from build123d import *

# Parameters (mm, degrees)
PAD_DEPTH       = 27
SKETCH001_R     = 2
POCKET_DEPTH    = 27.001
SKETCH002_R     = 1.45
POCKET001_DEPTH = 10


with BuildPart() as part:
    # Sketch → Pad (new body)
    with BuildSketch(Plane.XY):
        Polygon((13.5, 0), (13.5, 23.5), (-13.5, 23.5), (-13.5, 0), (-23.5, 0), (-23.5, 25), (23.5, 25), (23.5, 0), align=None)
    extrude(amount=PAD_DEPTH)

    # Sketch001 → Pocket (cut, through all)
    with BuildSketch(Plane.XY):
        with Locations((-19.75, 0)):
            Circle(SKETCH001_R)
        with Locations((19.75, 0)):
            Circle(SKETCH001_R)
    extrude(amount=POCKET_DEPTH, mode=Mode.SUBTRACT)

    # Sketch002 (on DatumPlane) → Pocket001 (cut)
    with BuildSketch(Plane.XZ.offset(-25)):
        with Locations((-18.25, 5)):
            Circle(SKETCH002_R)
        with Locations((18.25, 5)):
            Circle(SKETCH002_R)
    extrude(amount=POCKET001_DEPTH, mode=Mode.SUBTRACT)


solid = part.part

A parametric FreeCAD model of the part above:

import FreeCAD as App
import Part
import Sketcher

V = App.Vector
Q = App.Units.Quantity

doc = App.newDocument("Part")
body = doc.addObject("PartDesign::Body", "Body")

# Sketch on XY plane
sketch1 = doc.addObject("Sketcher::SketchObject", "Sketch")
body.addObject(sketch1)
sketch1.AttachmentSupport = (doc.XY_Plane, [""])
sketch1.MapMode = "FlatFace"
sketch1.addGeometry(Part.LineSegment(V(14, 24, 0), V(14, 0, 0)), False)
sketch1.addGeometry(Part.LineSegment(V(14, 0, 0), V(24, 0, 0)), False)
sketch1.addGeometry(Part.LineSegment(V(24, 0, 0), V(24, 25, 0)), False)
sketch1.addGeometry(Part.LineSegment(V(24, 25, 0), V(-24, 25, 0)), False)
sketch1.addGeometry(Part.LineSegment(V(-24, 25, 0), V(-24, 0, 0)), False)
sketch1.addGeometry(Part.LineSegment(V(-24, 0, 0), V(-14, 0, 0)), False)
sketch1.addGeometry(Part.LineSegment(V(-14, 0, 0), V(-14, 24, 0)), False)
sketch1.addGeometry(Part.LineSegment(V(-14, 24, 0), V(14, 24, 0)), False)
sketch1.addConstraint(Sketcher.Constraint("Coincident", 0, 2, 1, 1))
sketch1.addConstraint(Sketcher.Constraint("Coincident", 1, 2, 2, 1))
sketch1.addConstraint(Sketcher.Constraint("Coincident", 2, 2, 3, 1))
sketch1.addConstraint(Sketcher.Constraint("Coincident", 3, 2, 4, 1))
sketch1.addConstraint(Sketcher.Constraint("Coincident", 4, 2, 5, 1))
sketch1.addConstraint(Sketcher.Constraint("Coincident", 5, 2, 6, 1))
sketch1.addConstraint(Sketcher.Constraint("Coincident", 6, 2, 7, 1))
sketch1.addConstraint(Sketcher.Constraint("Coincident", 7, 2, 0, 1))
sketch1.addConstraint(Sketcher.Constraint("Vertical", 0))
sketch1.addConstraint(Sketcher.Constraint("Horizontal", 1))
sketch1.addConstraint(Sketcher.Constraint("Vertical", 2))
sketch1.addConstraint(Sketcher.Constraint("Horizontal", 3))
sketch1.addConstraint(Sketcher.Constraint("Vertical", 4))
sketch1.addConstraint(Sketcher.Constraint("Horizontal", 5))
sketch1.addConstraint(Sketcher.Constraint("Vertical", 6))
sketch1.addConstraint(Sketcher.Constraint("Horizontal", 7))
sketch1.addConstraint(Sketcher.Constraint("Symmetric", 1, 2, 4, 2, -1, 1))
sketch1.addConstraint(Sketcher.Constraint("Symmetric", 0, 2, 5, 2, -2))
sketch1.addConstraint(Sketcher.Constraint("DistanceX", 1, 1, 1, 2, Q("10 mm")))
sketch1.addConstraint(Sketcher.Constraint("DistanceX", 3, 2, 3, 1, Q("47 mm")))
sketch1.addConstraint(Sketcher.Constraint("DistanceY", 2, 1, 2, 2, Q("25 mm")))
sketch1.addConstraint(Sketcher.Constraint("DistanceY", 0, 2, 0, 1, Q("23.5 mm")))
pad1 = doc.addObject("PartDesign::Pad", "Pad")
body.addObject(pad1)
pad1.Profile = sketch1
pad1.Length = 27

# Sketch on XY plane
sketch2 = doc.addObject("Sketcher::SketchObject", "Sketch001")
body.addObject(sketch2)
sketch2.AttachmentSupport = (doc.XY_Plane, [""])
sketch2.MapMode = "FlatFace"
sketch2.addGeometry(Part.Circle(V(-19.8, 0, 0), V(0, 0, 1), 2), False)
sketch2.addGeometry(Part.Circle(V(19.8, 0, 0), V(0, 0, 1), 2), False)
sketch2.addConstraint(Sketcher.Constraint("Equal", 0, 1))
sketch2.addConstraint(Sketcher.Constraint("Symmetric", 0, 3, 1, 3, -1, 1))
sketch2.addConstraint(Sketcher.Constraint("PointOnObject", 0, 3, -1))
sketch2.addConstraint(Sketcher.Constraint("Diameter", 0, Q("4 mm")))
sketch2.addConstraint(Sketcher.Constraint("DistanceX", 0, 3, 1, 3, Q("39.5 mm")))
pocket1 = doc.addObject("PartDesign::Pocket", "Pocket")
body.addObject(pocket1)
pocket1.Profile = sketch2
pocket1.Type = "ThroughAll"
pocket1.Reversed = True

# Sketch on XZ plane
sketch3 = doc.addObject("Sketcher::SketchObject", "Sketch002")
body.addObject(sketch3)
sketch3.AttachmentSupport = (doc.XZ_Plane, [""])
sketch3.MapMode = "FlatFace"
sketch3.AttachmentOffset = App.Placement(V(0, 0, -25), App.Rotation())
sketch3.addGeometry(Part.Circle(V(-18.2, 5, 0), V(0, 0, 1), 1.4), False)
sketch3.addGeometry(Part.Circle(V(18.2, 5, 0), V(0, 0, 1), 1.4), False)
sketch3.addConstraint(Sketcher.Constraint("Equal", 0, 1))
sketch3.addConstraint(Sketcher.Constraint("Symmetric", 0, 3, 1, 3, -2))
sketch3.addConstraint(Sketcher.Constraint("Diameter", 0, Q("2.9 mm")))
sketch3.addConstraint(Sketcher.Constraint("DistanceY", -1, 1, 0, 3, Q("5 mm")))
sketch3.addConstraint(Sketcher.Constraint("DistanceX", 0, 3, 1, 3, Q("36.5 mm")))
pocket2 = doc.addObject("PartDesign::Pocket", "Pocket001")
body.addObject(pocket2)
pocket2.Profile = sketch3
pocket2.Length = 10
pocket2.Reversed = True

doc.recompute()
